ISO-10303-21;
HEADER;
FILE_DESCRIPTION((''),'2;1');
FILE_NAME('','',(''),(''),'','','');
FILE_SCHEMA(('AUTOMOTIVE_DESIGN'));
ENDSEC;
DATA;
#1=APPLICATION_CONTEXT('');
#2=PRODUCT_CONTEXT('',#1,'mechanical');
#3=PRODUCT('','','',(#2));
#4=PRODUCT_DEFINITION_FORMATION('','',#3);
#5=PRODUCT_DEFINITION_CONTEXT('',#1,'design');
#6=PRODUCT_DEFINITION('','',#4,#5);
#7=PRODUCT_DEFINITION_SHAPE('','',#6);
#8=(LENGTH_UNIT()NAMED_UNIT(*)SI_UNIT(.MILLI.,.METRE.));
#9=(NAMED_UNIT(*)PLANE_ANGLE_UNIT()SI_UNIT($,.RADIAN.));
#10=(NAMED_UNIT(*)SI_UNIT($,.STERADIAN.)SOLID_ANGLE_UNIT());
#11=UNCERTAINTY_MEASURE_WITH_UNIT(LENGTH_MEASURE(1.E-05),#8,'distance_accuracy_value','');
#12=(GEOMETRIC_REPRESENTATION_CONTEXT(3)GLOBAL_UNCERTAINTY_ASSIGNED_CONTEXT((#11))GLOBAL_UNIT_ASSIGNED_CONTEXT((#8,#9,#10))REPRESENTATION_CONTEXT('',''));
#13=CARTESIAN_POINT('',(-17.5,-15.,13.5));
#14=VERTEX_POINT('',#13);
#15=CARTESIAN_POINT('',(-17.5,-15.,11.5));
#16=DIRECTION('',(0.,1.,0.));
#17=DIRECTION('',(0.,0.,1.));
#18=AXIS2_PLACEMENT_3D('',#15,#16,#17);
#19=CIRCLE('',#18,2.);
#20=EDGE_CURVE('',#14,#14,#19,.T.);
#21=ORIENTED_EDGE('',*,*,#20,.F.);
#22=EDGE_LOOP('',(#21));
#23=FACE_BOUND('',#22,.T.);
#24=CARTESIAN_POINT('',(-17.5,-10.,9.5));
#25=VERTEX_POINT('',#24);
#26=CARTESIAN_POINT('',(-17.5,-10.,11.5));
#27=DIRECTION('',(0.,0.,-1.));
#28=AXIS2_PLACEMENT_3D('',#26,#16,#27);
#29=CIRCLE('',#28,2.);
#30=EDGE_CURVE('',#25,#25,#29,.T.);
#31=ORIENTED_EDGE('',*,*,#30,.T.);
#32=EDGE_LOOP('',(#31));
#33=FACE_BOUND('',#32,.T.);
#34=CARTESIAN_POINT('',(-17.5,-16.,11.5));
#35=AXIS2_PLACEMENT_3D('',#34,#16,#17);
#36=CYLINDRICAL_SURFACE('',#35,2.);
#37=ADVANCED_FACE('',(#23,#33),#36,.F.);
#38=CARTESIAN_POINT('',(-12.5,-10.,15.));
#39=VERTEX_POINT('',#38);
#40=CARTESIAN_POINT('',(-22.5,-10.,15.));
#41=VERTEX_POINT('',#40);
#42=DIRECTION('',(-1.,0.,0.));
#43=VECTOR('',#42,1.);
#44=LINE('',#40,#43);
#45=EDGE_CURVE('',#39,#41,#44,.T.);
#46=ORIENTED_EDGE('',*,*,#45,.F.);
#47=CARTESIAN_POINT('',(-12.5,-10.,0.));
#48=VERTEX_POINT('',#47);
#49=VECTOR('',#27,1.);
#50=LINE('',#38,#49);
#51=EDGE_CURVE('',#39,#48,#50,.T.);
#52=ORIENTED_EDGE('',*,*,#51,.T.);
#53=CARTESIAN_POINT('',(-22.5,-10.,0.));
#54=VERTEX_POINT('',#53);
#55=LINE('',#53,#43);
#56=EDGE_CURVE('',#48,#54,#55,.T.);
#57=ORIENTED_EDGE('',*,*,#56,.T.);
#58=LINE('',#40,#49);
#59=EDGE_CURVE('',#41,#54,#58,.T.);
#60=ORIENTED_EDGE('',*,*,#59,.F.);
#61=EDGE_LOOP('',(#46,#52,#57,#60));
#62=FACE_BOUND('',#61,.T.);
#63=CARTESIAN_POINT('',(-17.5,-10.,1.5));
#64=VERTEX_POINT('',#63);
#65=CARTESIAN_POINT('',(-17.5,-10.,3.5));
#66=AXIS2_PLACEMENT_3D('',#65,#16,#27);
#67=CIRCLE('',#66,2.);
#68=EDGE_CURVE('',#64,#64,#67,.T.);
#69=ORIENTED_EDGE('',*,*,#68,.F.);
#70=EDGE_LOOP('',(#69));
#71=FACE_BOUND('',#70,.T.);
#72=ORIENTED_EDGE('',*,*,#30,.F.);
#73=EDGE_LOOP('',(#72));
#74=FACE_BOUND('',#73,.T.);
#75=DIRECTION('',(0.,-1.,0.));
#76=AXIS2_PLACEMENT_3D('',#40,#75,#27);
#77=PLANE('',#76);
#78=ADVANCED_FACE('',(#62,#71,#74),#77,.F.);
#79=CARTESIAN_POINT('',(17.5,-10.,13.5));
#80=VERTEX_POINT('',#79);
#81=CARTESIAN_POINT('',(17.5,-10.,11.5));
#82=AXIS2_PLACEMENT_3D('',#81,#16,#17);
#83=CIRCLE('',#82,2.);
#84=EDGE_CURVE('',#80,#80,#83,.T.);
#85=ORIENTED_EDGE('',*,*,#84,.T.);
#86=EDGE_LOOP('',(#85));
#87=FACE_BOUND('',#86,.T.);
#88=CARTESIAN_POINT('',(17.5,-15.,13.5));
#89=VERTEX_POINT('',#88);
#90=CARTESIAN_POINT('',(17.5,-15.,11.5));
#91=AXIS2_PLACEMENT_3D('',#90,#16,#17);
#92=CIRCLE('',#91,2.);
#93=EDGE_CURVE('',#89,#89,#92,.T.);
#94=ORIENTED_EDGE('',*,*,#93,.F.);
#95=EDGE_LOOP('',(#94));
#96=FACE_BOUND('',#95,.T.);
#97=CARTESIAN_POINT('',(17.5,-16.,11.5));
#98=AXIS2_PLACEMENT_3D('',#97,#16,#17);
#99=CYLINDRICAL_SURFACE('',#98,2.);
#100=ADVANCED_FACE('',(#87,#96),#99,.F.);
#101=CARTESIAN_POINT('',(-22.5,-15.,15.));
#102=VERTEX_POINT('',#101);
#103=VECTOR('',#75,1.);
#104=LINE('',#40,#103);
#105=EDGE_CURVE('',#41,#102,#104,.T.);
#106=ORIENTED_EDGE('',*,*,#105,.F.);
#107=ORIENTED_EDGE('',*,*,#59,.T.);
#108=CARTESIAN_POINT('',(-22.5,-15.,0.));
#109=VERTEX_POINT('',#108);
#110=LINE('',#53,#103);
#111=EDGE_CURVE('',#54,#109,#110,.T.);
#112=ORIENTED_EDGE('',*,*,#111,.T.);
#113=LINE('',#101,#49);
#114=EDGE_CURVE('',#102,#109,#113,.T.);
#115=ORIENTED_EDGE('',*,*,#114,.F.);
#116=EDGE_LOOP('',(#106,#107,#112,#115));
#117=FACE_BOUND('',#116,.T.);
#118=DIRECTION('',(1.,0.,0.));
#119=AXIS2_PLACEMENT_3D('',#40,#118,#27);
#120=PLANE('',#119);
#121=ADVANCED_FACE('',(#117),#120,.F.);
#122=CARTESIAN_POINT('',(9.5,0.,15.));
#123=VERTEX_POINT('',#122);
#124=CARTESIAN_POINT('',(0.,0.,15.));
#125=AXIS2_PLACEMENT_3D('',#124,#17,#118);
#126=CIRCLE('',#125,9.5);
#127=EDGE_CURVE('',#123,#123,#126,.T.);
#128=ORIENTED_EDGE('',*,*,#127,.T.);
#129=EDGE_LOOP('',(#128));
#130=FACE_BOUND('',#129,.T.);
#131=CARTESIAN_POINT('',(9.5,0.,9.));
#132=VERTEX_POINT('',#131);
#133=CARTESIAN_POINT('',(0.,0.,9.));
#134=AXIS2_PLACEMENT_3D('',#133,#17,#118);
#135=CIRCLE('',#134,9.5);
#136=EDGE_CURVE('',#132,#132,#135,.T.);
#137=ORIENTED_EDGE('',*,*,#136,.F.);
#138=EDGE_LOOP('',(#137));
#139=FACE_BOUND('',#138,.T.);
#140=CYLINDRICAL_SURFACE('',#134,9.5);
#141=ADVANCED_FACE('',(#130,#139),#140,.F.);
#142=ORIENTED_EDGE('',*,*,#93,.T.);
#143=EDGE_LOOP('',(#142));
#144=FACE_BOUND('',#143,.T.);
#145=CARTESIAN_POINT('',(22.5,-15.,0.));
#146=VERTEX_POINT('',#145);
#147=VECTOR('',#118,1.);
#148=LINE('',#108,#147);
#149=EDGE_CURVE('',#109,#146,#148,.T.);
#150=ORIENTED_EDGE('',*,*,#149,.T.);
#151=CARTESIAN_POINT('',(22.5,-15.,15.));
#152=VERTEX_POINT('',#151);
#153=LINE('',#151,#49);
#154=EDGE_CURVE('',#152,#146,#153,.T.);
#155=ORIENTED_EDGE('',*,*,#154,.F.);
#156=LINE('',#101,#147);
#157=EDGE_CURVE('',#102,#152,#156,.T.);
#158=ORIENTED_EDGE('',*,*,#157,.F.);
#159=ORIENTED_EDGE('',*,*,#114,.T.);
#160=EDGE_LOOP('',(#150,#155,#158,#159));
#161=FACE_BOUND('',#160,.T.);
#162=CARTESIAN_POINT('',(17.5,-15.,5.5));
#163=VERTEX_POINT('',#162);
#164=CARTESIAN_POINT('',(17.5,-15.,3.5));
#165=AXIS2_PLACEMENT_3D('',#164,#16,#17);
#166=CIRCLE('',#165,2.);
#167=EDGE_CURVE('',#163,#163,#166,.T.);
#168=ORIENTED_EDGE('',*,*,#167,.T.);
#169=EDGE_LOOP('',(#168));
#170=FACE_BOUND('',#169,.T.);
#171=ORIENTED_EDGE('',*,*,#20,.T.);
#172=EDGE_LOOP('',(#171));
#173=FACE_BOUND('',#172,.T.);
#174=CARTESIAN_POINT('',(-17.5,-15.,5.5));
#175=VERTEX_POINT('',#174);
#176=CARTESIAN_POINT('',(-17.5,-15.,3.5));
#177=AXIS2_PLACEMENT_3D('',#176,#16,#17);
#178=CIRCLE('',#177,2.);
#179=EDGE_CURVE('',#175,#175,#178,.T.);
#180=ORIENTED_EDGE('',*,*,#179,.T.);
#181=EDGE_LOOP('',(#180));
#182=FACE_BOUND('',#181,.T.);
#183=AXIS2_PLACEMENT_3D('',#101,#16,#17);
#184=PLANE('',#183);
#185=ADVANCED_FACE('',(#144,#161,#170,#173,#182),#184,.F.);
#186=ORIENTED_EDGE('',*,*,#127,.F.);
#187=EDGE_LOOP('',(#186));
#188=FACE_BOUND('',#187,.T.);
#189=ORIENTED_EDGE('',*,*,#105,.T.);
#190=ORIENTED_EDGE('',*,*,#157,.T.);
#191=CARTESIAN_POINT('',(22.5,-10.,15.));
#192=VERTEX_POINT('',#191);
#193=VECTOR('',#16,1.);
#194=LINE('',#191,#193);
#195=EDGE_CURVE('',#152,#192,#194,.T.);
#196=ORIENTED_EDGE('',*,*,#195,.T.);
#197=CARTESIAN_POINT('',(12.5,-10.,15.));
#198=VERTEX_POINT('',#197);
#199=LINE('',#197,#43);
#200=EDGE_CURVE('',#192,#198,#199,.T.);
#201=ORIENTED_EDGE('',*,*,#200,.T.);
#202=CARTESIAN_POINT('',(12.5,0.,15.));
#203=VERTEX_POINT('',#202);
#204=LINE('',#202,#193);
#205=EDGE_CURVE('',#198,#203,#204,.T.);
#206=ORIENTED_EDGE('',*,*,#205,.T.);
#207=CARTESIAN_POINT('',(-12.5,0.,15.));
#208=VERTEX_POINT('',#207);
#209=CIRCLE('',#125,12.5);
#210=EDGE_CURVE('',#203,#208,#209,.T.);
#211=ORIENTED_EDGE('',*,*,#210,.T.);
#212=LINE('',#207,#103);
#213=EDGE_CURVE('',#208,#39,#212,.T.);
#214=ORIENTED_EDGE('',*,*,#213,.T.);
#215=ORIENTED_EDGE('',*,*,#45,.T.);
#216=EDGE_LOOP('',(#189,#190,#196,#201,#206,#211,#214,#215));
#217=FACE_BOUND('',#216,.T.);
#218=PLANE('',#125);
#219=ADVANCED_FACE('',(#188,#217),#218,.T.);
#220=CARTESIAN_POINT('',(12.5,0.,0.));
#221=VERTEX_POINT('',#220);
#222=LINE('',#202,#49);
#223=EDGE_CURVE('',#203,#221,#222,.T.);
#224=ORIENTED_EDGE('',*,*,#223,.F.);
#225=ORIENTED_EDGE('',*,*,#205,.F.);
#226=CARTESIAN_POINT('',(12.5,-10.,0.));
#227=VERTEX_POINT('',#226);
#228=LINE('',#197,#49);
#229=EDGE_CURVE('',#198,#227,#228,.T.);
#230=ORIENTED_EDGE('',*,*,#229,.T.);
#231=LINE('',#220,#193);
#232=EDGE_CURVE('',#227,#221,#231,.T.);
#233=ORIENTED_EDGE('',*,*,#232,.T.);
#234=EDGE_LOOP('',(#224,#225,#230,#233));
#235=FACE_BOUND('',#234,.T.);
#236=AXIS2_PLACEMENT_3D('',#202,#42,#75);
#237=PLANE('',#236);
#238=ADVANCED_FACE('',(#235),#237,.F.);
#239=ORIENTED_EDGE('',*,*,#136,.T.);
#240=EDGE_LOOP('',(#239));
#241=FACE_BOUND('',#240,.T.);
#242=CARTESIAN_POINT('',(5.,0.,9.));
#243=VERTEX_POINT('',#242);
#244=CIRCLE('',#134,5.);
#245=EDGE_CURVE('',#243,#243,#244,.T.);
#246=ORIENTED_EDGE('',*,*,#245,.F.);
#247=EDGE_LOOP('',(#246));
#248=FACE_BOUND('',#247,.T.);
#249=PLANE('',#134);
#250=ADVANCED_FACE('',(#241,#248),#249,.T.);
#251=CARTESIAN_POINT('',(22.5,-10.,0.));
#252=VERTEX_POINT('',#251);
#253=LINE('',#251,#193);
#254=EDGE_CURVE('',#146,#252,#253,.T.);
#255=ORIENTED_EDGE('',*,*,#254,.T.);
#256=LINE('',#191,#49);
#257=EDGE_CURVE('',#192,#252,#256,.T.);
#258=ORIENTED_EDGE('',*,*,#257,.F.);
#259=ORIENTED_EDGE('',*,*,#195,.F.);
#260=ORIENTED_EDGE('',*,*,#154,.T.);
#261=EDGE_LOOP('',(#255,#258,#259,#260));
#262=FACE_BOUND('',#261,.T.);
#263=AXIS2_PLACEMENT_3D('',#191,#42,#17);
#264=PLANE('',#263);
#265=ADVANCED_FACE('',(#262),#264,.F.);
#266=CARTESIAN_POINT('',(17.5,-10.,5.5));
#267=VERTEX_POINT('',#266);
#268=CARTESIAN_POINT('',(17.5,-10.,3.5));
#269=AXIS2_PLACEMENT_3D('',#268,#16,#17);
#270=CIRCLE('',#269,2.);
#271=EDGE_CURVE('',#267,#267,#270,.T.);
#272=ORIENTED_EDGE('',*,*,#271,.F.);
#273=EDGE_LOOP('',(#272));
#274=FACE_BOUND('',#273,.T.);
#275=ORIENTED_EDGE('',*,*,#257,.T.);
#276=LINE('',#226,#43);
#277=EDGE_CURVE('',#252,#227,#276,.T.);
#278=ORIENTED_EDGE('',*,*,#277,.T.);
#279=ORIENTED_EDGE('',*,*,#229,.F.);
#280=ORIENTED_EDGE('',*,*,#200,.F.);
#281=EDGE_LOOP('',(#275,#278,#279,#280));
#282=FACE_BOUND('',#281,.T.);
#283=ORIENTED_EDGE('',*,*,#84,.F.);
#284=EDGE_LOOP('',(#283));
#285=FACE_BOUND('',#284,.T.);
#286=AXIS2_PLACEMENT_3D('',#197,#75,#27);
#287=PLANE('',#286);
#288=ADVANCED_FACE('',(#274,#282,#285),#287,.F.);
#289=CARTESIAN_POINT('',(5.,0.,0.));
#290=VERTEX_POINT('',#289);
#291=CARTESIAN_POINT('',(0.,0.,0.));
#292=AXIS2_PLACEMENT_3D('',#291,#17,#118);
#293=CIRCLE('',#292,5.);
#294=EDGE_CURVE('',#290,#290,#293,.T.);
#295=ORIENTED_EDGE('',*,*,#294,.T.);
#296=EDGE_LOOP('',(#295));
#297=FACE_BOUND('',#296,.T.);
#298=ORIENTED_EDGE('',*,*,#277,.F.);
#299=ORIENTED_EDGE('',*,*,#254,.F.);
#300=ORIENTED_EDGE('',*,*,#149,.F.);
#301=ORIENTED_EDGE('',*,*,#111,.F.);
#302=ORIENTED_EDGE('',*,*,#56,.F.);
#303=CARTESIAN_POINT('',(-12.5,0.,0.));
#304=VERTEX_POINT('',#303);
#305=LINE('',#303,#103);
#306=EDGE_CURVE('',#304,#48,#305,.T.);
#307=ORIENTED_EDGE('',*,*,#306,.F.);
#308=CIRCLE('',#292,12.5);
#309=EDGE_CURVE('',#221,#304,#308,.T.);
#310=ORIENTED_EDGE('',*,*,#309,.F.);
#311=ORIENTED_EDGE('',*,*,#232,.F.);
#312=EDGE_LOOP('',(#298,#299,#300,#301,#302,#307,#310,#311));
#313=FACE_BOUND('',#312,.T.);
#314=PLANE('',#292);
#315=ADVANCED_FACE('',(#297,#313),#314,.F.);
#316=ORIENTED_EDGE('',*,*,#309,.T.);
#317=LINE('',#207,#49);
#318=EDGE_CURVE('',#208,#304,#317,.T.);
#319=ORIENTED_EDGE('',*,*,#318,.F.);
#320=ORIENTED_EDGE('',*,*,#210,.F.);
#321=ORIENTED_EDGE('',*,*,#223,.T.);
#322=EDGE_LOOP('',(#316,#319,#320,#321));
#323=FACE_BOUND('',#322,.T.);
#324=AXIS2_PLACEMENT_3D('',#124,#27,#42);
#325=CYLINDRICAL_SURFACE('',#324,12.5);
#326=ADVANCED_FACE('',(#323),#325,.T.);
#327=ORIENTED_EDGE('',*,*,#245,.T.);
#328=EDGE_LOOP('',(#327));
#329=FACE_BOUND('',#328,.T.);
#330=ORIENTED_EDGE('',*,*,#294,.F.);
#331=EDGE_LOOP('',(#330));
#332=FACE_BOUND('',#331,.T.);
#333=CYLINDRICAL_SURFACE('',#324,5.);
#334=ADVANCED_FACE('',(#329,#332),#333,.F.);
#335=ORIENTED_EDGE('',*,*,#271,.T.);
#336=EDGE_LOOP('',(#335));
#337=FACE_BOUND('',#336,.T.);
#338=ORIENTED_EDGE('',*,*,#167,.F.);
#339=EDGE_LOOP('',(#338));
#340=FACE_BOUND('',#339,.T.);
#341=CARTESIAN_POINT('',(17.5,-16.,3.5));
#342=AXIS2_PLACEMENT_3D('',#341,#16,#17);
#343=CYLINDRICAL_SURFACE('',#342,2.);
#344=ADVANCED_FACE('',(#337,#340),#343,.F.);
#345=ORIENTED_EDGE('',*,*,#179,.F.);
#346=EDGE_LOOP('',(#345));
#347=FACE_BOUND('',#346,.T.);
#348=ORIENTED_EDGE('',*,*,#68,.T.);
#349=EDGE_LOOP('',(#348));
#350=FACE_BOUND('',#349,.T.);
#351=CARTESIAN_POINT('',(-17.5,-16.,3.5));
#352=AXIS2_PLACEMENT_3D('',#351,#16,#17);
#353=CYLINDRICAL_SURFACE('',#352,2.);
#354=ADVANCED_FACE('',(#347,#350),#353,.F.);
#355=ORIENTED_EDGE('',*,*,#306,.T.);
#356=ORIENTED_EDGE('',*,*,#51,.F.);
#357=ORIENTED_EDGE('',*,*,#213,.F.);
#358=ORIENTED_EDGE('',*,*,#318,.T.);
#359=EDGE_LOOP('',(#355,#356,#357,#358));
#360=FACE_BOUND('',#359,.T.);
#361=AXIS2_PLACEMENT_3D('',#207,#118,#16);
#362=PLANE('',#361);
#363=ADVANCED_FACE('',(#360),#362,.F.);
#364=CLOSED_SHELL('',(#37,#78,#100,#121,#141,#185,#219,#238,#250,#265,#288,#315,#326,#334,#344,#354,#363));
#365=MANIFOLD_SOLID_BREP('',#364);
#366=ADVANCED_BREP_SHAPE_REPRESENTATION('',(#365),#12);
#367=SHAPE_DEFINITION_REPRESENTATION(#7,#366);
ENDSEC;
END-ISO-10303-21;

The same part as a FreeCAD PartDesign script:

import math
import FreeCAD as App
import Part
import Sketcher

V = App.Vector
Q = App.Units.Quantity

doc = App.newDocument("Part")
body = doc.addObject("PartDesign::Body", "Body")

sketch1 = doc.addObject("Sketcher::SketchObject", "Sketch")
body.addObject(sketch1)
sketch1.AttachmentSupport = (doc.XY_Plane, [""])
sketch1.MapMode = "FlatFace"
sketch1.addGeometry([
    Part.LineSegment(V(-12, 0, 0), V(-12, -10, 0)),
    Part.LineSegment(V(-12, -10, 0), V(-22, -10, 0)),
    Part.LineSegment(V(-22, -10, 0), V(-22, -15, 0)),
    Part.LineSegment(V(-22, -15, 0), V(22, -15, 0)),
    Part.LineSegment(V(22, -15, 0), V(22, -10, 0)),
    Part.LineSegment(V(22, -10, 0), V(12, -10, 0)),
    Part.LineSegment(V(12, -10, 0), V(12, 0, 0)),
    Part.ArcOfCircle(Part.Circle(V(0, 0, 0), V(0, 0, 1), 12), math.radians(0), math.radians(180)),
    Part.Circle(V(0, 0, 0), V(0, 0, 1), 5),
], False)
sketch1.addConstraint([
    Sketcher.Constraint("Coincident", 0, 2, 1, 1),
    Sketcher.Constraint("Coincident", 1, 2, 2, 1),
    Sketcher.Constraint("Coincident", 2, 2, 3, 1),
    Sketcher.Constraint("Coincident", 3, 2, 4, 1),
    Sketcher.Constraint("Coincident", 4, 2, 5, 1),
    Sketcher.Constraint("Coincident", 5, 2, 6, 1),
    Sketcher.Constraint("Tangent", 6, 2, 7, 1),
    Sketcher.Constraint("Tangent", 7, 2, 0, 1),
    Sketcher.Constraint("Vertical", 0),
    Sketcher.Constraint("Horizontal", 1),
    Sketcher.Constraint("Vertical", 2),
    Sketcher.Constraint("Horizontal", 3),
    Sketcher.Constraint("Vertical", 4),
    Sketcher.Constraint("Horizontal", 5),
    Sketcher.Constraint("Vertical", 6),
    Sketcher.Constraint("Coincident", 7, 3, -1, 1),
    Sketcher.Constraint("Coincident", 8, 3, -1, 1),
    Sketcher.Constraint("Symmetric", 1, 2, 4, 2, -2),
    Sketcher.Constraint("Equal", 5, 0),
    Sketcher.Constraint("Diameter", 8, Q("10 mm")),
    Sketcher.Constraint("Radius", 7, Q("12.5 mm")),
    Sketcher.Constraint("DistanceX", 1, 2, 1, 1, Q("10 mm")),
    Sketcher.Constraint("DistanceY", 2, 2, 2, 1, Q("5 mm")),
])
pad1 = doc.addObject("PartDesign::Pad", "Pad")
body.addObject(pad1)
pad1.Profile = sketch1
pad1.Length = 15

sketch2 = doc.addObject("Sketcher::SketchObject", "Sketch001")
body.addObject(sketch2)
sketch2.AttachmentSupport = (doc.XY_Plane, [""])
sketch2.MapMode = "FlatFace"
sketch2.AttachmentOffset = App.Placement(V(0, 0, 15), App.Rotation())
sketch2.addGeometry(Part.Circle(V(0, 0, 0), V(0, 0, 1), 10), False)
sketch2.addConstraint([
    Sketcher.Constraint("Coincident", 0, 3, -1, 1),
    Sketcher.Constraint("Diameter", 0, Q("19 mm")),
])
pocket1 = doc.addObject("PartDesign::Pocket", "Pocket")
body.addObject(pocket1)
pocket1.Profile = sketch2
pocket1.Length = 6

sketch3 = doc.addObject("Sketcher::SketchObject", "Sketch002")
body.addObject(sketch3)
sketch3.AttachmentSupport = (doc.XZ_Plane, [""])
sketch3.MapMode = "FlatFace"
sketch3.AttachmentOffset = App.Placement(V(0, 0, 10), App.Rotation())
sketch3.addGeometry([
    Part.Circle(V(17.5, 3.5, 0), V(0, 0, 1), 2),
    Part.Circle(V(17.5, 11.5, 0), V(0, 0, 1), 2),
    Part.Circle(V(-17.5, 11.5, 0), V(0, 0, 1), 2),
    Part.Circle(V(-17.5, 3.5, 0), V(0, 0, 1), 2),
], False)
sketch3.addConstraint([
    Sketcher.Constraint("Equal", 0, 1),
    Sketcher.Constraint("Equal", 1, 2),
    Sketcher.Constraint("Equal", 2, 3),
    Sketcher.Constraint("Symmetric", 1, 3, 2, 3, -2),
    Sketcher.Constraint("Symmetric", 0, 3, 3, 3, -2),
    Sketcher.Constraint("Vertical", 0, 3, 1, 3),
    Sketcher.Constraint("Diameter", 0, Q("4 mm")),
    Sketcher.Constraint("DistanceY", 0, 3, 1, 3, Q("8 mm")),
    Sketcher.Constraint("DistanceX", 2, 3, 1, 3, Q("35 mm")),
    Sketcher.Constraint("DistanceY", -1, 1, 0, 3, Q("3.5 mm")),
])
pocket2 = doc.addObject("PartDesign::Pocket", "Pocket001")
body.addObject(pocket2)
pocket2.Profile = sketch3
pocket2.Length = 6
pocket2.Reversed = True

doc.recompute()
